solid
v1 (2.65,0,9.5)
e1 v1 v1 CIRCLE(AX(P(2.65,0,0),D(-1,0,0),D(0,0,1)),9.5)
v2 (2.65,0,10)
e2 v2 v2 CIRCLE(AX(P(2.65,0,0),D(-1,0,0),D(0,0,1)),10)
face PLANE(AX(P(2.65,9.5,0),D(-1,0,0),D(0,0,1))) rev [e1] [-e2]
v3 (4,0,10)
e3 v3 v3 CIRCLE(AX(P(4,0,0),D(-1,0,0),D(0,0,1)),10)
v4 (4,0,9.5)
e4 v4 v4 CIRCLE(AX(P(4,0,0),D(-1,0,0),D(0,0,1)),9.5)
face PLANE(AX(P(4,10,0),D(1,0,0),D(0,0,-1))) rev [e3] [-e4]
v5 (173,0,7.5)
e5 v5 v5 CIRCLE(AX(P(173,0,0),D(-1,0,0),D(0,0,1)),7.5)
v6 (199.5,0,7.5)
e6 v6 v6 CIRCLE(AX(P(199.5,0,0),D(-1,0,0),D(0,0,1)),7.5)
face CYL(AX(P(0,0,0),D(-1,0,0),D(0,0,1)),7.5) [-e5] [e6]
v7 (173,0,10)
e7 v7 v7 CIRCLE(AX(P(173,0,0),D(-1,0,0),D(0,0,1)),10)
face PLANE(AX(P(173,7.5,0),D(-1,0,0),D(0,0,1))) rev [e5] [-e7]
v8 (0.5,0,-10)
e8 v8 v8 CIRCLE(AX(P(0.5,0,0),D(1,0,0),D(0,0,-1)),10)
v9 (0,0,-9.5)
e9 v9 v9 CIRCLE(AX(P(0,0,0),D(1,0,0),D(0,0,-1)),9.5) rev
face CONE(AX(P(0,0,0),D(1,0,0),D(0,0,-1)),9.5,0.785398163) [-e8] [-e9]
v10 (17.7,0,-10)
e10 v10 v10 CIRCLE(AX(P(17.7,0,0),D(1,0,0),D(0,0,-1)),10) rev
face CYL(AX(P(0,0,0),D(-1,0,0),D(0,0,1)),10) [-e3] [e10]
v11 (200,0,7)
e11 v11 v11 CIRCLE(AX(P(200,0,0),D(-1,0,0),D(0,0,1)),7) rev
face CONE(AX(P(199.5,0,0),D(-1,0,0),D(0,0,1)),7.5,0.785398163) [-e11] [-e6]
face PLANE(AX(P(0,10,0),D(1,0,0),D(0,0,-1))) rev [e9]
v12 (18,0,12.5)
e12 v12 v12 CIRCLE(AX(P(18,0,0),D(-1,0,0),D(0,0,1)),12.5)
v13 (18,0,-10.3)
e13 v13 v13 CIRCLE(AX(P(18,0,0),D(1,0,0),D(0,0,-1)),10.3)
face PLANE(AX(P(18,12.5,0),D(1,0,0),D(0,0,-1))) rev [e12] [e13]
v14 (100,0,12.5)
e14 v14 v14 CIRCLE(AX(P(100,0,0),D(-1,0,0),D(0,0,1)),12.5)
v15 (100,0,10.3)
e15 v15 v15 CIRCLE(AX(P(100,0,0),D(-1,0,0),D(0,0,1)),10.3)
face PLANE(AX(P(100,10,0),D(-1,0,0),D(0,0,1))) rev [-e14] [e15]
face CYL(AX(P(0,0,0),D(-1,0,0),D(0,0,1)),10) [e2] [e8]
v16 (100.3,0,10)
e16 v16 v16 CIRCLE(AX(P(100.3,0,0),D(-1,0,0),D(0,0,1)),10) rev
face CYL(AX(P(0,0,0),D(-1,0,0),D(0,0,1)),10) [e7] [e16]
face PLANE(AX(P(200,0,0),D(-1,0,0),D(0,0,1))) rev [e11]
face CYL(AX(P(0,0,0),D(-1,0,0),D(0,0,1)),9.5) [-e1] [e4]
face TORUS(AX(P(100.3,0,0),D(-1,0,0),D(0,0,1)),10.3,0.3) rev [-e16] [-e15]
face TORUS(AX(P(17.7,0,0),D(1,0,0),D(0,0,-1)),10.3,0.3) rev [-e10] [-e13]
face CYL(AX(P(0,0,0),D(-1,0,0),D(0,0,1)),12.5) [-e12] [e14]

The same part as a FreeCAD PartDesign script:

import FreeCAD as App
import Part
import Sketcher

V = App.Vector
Q = App.Units.Quantity


def edges_at(feature, points):
    """Names of the edges that pass closest to the given points."""
    edges = feature.Shape.Edges
    near = lambda p: min(range(len(edges)), key=lambda i: edges[i].distToShape(Part.Vertex(*p))[0])
    return sorted({f"Edge{near(p) + 1}" for p in points})


def add_polygon(sketch, points):
    """Adds a closed chain of lines whose ends are joined by coincident constraints."""
    first, n = sketch.GeometryCount, len(points)
    for a, b in zip(points, points[1:] + points[:1]):
        sketch.addGeometry(Part.LineSegment(App.Vector(*a, 0), App.Vector(*b, 0)), False)
    for i in range(n):
        sketch.addConstraint(Sketcher.Constraint("Coincident", first + i, 2, first + (i + 1) % n, 1))

doc = App.newDocument("Part")
params = doc.addObject("Spreadsheet::Sheet", "Params")
for row, (alias, value) in enumerate([
    ("sketch1_width", "200 mm"),
    ("sketch1_width2", "27 mm"),
    ("sketch1_width3", "73 mm"),
    ("sketch1_width4", "82 mm"),
    ("sketch1_width5", "14 mm"),
    ("revolution_angle", "360 deg"),
    ("fillet_radius", "0.3 mm"),
    ("chamfer_size", "0.5 mm"),
], start=1):
    params.set(f"A{row}", alias)
    params.set(f"B{row}", "=" + value)
    params.setAlias(f"B{row}", alias)

body = doc.addObject("PartDesign::Body", "Body")

# Sketch on XY plane
sketch1 = body.newObject("Sketcher::SketchObject", "Sketch")
sketch1.AttachmentSupport = (doc.getObject("XY_Plane"), [""])
sketch1.MapMode = "FlatFace"
add_polygon(sketch1, [(0, 0), (200, 0), (200, 7.5), (173, 7.5), (173, 10), (100, 10), (100, 12.5), (18, 12.5), (18, 10), (4, 10), (4, 9.5), (2.6, 9.5), (2.6, 10), (0, 10)])  # lines 0-13
sketch1.addConstraint([
    Sketcher.Constraint("Horizontal", 0),
    Sketcher.Constraint("Vertical", 1),
    Sketcher.Constraint("Horizontal", 2),
    Sketcher.Constraint("Vertical", 3),
    Sketcher.Constraint("Horizontal", 4),
    Sketcher.Constraint("Vertical", 5),
    Sketcher.Constraint("Horizontal", 6),
    Sketcher.Constraint("Vertical", 7),
    Sketcher.Constraint("Horizontal", 8),
    Sketcher.Constraint("Vertical", 9),
    Sketcher.Constraint("Horizontal", 10),
    Sketcher.Constraint("Vertical", 11),
    Sketcher.Constraint("Horizontal", 12),
    Sketcher.Constraint("Vertical", 13),
    Sketcher.Constraint("Coincident", 13, 2, -1, 1),
    Sketcher.Constraint("Horizontal", 4, 2, 7, 2),
    Sketcher.Constraint("Horizontal", 8, 2, 11, 2),
    Sketcher.Constraint("Equal", 3, 5),
    Sketcher.Constraint("DistanceX", 0, 1, 0, 2, Q("200 mm")),
    Sketcher.Constraint("DistanceX", 2, 2, 2, 1, Q("27 mm")),
    Sketcher.Constraint("DistanceX", 4, 2, 4, 1, Q("73 mm")),
    Sketcher.Constraint("DistanceX", 6, 2, 6, 1, Q("82 mm")),
    Sketcher.Constraint("DistanceX", 8, 2, 8, 1, Q("14 mm")),
    Sketcher.Constraint("DistanceY", 13, 2, 13, 1, Q("10 mm")),
    Sketcher.Constraint("DistanceY", 1, 1, 1, 2, Q("7.5 mm")),
    Sketcher.Constraint("DistanceY", 9, 2, 9, 1, Q("0.5 mm")),
    Sketcher.Constraint("DistanceX", 10, 2, 10, 1, Q("1.35 mm")),
])
sketch1.setExpression("Constraints[32]", "Params.sketch1_width")
sketch1.setExpression("Constraints[33]", "Params.sketch1_width2")
sketch1.setExpression("Constraints[34]", "Params.sketch1_width3")
sketch1.setExpression("Constraints[35]", "Params.sketch1_width4")
sketch1.setExpression("Constraints[36]", "Params.sketch1_width5")
revolution = body.newObject("PartDesign::Revolution", "Revolution")
revolution.Profile = sketch1
revolution.ReferenceAxis = (sketch1, ["H_Axis"])
revolution.setExpression("Angle", "Params.revolution_angle")
doc.recompute()

fillet = body.newObject("PartDesign::Fillet", "Fillet")
fillet.Base = (revolution, edges_at(revolution, [(100, 0, -10), (18, 0, -10)]))
fillet.setExpression("Radius", "Params.fillet_radius")
doc.recompute()

chamfer = body.newObject("PartDesign::Chamfer", "Chamfer")
chamfer.Base = (fillet, edges_at(fillet, [(200, 0, -7.5), (0, 0, -10)]))
chamfer.setExpression("Size", "Params.chamfer_size")

doc.recompute()
